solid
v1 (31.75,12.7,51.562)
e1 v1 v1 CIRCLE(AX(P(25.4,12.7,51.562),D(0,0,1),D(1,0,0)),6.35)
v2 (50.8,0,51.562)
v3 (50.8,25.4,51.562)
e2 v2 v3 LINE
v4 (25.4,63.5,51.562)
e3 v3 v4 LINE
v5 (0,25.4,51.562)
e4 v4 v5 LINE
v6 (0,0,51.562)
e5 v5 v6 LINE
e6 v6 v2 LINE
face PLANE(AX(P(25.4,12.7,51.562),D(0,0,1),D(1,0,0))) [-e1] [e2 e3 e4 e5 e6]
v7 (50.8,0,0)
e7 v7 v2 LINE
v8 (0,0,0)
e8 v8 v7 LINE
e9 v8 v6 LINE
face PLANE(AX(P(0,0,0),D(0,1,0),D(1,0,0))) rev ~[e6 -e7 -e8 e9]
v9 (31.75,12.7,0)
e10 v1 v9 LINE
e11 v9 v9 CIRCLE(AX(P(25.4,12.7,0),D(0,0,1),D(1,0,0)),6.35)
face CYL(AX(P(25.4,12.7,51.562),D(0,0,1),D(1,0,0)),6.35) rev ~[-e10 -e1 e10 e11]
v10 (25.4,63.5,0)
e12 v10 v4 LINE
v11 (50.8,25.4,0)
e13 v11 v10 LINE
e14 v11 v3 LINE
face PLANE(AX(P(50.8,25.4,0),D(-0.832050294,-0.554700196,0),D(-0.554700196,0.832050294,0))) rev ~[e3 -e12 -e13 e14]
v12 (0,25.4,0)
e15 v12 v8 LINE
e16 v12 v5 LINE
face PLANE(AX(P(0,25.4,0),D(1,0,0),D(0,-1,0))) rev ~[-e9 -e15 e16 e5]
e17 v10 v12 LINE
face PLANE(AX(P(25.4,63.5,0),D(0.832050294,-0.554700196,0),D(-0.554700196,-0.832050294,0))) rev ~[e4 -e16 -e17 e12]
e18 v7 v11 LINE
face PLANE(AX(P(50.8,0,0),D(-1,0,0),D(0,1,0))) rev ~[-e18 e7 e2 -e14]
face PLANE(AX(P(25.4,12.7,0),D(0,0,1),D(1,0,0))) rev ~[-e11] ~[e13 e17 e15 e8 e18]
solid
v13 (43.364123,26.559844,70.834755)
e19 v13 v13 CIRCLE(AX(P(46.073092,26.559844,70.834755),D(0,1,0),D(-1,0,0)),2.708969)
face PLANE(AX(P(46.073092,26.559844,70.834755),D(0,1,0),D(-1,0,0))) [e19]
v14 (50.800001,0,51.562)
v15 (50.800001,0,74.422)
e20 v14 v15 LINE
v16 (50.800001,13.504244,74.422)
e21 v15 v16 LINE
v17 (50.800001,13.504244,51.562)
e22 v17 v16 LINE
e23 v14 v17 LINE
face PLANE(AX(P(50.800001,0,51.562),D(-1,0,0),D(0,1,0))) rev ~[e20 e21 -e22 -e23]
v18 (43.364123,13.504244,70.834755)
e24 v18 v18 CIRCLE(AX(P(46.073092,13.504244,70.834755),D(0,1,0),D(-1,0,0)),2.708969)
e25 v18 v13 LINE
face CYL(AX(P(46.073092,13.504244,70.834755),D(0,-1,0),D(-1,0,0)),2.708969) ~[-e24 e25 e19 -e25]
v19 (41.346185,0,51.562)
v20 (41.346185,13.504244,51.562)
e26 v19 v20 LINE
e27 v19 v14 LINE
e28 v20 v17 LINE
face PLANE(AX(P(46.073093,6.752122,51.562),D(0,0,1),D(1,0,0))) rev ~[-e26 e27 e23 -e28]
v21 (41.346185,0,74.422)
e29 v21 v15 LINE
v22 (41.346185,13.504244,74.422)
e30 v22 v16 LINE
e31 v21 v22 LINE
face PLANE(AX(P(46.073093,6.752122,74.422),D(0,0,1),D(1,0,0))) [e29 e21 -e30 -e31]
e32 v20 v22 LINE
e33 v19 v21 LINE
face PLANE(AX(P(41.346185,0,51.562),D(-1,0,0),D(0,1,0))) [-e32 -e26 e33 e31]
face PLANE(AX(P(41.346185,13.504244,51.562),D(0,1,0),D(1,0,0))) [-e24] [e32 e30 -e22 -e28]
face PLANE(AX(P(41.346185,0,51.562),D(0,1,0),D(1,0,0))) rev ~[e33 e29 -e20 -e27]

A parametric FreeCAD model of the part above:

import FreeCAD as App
import Part
import Sketcher
from FreeCAD import Vector
Q = App.Units.Quantity

doc = App.newDocument("Part")
body = doc.addObject("PartDesign::Body", "Body")

# Sketch on XY plane
sketch1 = body.newObject("Sketcher::SketchObject", "Sketch")
sketch1.AttachmentSupport = (doc.getObject("XY_Plane"), [""])
sketch1.MapMode = "FlatFace"
sketch1.addGeometry([
    Part.LineSegment(Vector(0, 25.4, 0), Vector(0, 0, 0)),  # 0
    Part.LineSegment(Vector(0, 0, 0), Vector(50.8, 0, 0)),  # 1
    Part.LineSegment(Vector(50.8, 0, 0), Vector(50.8, 25.4, 0)),  # 2
    Part.LineSegment(Vector(50.8, 25.4, 0), Vector(25.4, 63.5, 0)),  # 3
    Part.LineSegment(Vector(25.4, 63.5, 0), Vector(0, 25.4, 0)),  # 4
], False)
sketch1.addConstraint([
    Sketcher.Constraint("Coincident", 0, 2, 1, 1),
    Sketcher.Constraint("Coincident", 1, 2, 2, 1),
    Sketcher.Constraint("Coincident", 2, 2, 3, 1),
    Sketcher.Constraint("Coincident", 3, 2, 4, 1),
    Sketcher.Constraint("Coincident", 4, 2, 0, 1),
    Sketcher.Constraint("Vertical", 0),
    Sketcher.Constraint("Horizontal", 1),
    Sketcher.Constraint("Vertical", 2),
    Sketcher.Constraint("Coincident", 0, 2, -1, 1),
    Sketcher.Constraint("Horizontal", 2, 2, 4, 2),
    Sketcher.Constraint("Equal", 3, 4),
    Sketcher.Constraint("DistanceX", 1, 1, 1, 2, Q("2 in")),
    Sketcher.Constraint("DistanceY", 0, 2, 0, 1, Q("1 in")),
    Sketcher.Constraint("DistanceY", -1, 1, 3, 2, Q("2.5 in")),
])
pad1 = body.newObject("PartDesign::Pad", "Pad")
pad1.Profile = sketch1
pad1.Length = Q("2.03 in")

# Sketch on XY plane
sketch2 = body.newObject("Sketcher::SketchObject", "Sketch001")
sketch2.AttachmentSupport = (doc.getObject("XY_Plane"), [""])
sketch2.MapMode = "FlatFace"
sketch2.AttachmentOffset = App.Placement(Vector(0, 0, 2.03 * 25.4), App.Rotation())
sketch2.addGeometry(Part.Circle(Vector(25.4, 12.7, 0), Vector(0, 0, 1), 6.35), False)
sketch2.addConstraint([
    Sketcher.Constraint("Diameter", 0, Q("0.5 in")),
    Sketcher.Constraint("DistanceX", -1, 1, 0, 3, Q("1 in")),
    Sketcher.Constraint("DistanceY", -1, 1, 0, 3, Q("0.5 in")),
])
pocket1 = body.newObject("PartDesign::Pocket", "Pocket")
pocket1.Profile = sketch2
pocket1.Type = "ThroughAll"
body2 = doc.addObject("PartDesign::Body", "Body001")

# Sketch on XY plane
sketch3 = body2.newObject("Sketcher::SketchObject", "Sketch002")
sketch3.AttachmentSupport = (doc.getObject("XY_Plane001"), [""])
sketch3.MapMode = "FlatFace"
sketch3.AttachmentOffset = App.Placement(Vector(0, 0, 2.03 * 25.4), App.Rotation())
sketch3.addGeometry([
    Part.LineSegment(Vector(41.346185, 13.504244, 0), Vector(41.346185, 0, 0)),
    Part.LineSegment(Vector(41.346185, 0, 0), Vector(50.800001, 0, 0)),
    Part.LineSegment(Vector(50.800001, 0, 0), Vector(50.800001, 13.504244, 0)),
    Part.LineSegment(Vector(50.800001, 13.504244, 0), Vector(41.346185, 13.504244, 0)),
], False)
sketch3.addConstraint([
    Sketcher.Constraint("Coincident", 0, 2, 1, 1),
    Sketcher.Constraint("Coincident", 1, 2, 2, 1),
    Sketcher.Constraint("Coincident", 2, 2, 3, 1),
    Sketcher.Constraint("Coincident", 3, 2, 0, 1),
    Sketcher.Constraint("Vertical", 0),
    Sketcher.Constraint("Horizontal", 1),
    Sketcher.Constraint("Vertical", 2),
    Sketcher.Constraint("Horizontal", 3),
    Sketcher.Constraint("PointOnObject", 0, 2, -1),
    Sketcher.Constraint("DistanceX", -1, 1, 1, 2, Q("2 in")),
    Sketcher.Constraint("DistanceX", 1, 1, 1, 2, Q("9.453815 mm")),
    Sketcher.Constraint("DistanceY", 0, 2, 0, 1, Q("13.504244 mm")),
])
pad2 = body2.newObject("PartDesign::Pad", "Pad001")
pad2.Profile = sketch3
pad2.Length = Q("0.9 in")

# Sketch on XZ plane
sketch4 = body2.newObject("Sketcher::SketchObject", "Sketch003")
sketch4.AttachmentSupport = (doc.getObject("XZ_Plane001"), [""])
sketch4.MapMode = "FlatFace"
sketch4.AttachmentOffset = App.Placement(Vector(0, 0, -13.504244), App.Rotation())
sketch4.addGeometry(Part.Circle(Vector(46.073092, 70.834755, 0), Vector(0, 0, 1), 2.708969), False)
sketch4.addConstraint([
    Sketcher.Constraint("Diameter", 0, Q("5.417938 mm")),
    Sketcher.Constraint("DistanceX", -1, 1, 0, 3, Q("46.073092 mm")),
    Sketcher.Constraint("DistanceY", -1, 1, 0, 3, Q("70.834755 mm")),
])
pad3 = body2.newObject("PartDesign::Pad", "Pad002")
pad3.Profile = sketch4
pad3.Length = Q("0.514 in")
pad3.Reversed = True

doc.recompute()
